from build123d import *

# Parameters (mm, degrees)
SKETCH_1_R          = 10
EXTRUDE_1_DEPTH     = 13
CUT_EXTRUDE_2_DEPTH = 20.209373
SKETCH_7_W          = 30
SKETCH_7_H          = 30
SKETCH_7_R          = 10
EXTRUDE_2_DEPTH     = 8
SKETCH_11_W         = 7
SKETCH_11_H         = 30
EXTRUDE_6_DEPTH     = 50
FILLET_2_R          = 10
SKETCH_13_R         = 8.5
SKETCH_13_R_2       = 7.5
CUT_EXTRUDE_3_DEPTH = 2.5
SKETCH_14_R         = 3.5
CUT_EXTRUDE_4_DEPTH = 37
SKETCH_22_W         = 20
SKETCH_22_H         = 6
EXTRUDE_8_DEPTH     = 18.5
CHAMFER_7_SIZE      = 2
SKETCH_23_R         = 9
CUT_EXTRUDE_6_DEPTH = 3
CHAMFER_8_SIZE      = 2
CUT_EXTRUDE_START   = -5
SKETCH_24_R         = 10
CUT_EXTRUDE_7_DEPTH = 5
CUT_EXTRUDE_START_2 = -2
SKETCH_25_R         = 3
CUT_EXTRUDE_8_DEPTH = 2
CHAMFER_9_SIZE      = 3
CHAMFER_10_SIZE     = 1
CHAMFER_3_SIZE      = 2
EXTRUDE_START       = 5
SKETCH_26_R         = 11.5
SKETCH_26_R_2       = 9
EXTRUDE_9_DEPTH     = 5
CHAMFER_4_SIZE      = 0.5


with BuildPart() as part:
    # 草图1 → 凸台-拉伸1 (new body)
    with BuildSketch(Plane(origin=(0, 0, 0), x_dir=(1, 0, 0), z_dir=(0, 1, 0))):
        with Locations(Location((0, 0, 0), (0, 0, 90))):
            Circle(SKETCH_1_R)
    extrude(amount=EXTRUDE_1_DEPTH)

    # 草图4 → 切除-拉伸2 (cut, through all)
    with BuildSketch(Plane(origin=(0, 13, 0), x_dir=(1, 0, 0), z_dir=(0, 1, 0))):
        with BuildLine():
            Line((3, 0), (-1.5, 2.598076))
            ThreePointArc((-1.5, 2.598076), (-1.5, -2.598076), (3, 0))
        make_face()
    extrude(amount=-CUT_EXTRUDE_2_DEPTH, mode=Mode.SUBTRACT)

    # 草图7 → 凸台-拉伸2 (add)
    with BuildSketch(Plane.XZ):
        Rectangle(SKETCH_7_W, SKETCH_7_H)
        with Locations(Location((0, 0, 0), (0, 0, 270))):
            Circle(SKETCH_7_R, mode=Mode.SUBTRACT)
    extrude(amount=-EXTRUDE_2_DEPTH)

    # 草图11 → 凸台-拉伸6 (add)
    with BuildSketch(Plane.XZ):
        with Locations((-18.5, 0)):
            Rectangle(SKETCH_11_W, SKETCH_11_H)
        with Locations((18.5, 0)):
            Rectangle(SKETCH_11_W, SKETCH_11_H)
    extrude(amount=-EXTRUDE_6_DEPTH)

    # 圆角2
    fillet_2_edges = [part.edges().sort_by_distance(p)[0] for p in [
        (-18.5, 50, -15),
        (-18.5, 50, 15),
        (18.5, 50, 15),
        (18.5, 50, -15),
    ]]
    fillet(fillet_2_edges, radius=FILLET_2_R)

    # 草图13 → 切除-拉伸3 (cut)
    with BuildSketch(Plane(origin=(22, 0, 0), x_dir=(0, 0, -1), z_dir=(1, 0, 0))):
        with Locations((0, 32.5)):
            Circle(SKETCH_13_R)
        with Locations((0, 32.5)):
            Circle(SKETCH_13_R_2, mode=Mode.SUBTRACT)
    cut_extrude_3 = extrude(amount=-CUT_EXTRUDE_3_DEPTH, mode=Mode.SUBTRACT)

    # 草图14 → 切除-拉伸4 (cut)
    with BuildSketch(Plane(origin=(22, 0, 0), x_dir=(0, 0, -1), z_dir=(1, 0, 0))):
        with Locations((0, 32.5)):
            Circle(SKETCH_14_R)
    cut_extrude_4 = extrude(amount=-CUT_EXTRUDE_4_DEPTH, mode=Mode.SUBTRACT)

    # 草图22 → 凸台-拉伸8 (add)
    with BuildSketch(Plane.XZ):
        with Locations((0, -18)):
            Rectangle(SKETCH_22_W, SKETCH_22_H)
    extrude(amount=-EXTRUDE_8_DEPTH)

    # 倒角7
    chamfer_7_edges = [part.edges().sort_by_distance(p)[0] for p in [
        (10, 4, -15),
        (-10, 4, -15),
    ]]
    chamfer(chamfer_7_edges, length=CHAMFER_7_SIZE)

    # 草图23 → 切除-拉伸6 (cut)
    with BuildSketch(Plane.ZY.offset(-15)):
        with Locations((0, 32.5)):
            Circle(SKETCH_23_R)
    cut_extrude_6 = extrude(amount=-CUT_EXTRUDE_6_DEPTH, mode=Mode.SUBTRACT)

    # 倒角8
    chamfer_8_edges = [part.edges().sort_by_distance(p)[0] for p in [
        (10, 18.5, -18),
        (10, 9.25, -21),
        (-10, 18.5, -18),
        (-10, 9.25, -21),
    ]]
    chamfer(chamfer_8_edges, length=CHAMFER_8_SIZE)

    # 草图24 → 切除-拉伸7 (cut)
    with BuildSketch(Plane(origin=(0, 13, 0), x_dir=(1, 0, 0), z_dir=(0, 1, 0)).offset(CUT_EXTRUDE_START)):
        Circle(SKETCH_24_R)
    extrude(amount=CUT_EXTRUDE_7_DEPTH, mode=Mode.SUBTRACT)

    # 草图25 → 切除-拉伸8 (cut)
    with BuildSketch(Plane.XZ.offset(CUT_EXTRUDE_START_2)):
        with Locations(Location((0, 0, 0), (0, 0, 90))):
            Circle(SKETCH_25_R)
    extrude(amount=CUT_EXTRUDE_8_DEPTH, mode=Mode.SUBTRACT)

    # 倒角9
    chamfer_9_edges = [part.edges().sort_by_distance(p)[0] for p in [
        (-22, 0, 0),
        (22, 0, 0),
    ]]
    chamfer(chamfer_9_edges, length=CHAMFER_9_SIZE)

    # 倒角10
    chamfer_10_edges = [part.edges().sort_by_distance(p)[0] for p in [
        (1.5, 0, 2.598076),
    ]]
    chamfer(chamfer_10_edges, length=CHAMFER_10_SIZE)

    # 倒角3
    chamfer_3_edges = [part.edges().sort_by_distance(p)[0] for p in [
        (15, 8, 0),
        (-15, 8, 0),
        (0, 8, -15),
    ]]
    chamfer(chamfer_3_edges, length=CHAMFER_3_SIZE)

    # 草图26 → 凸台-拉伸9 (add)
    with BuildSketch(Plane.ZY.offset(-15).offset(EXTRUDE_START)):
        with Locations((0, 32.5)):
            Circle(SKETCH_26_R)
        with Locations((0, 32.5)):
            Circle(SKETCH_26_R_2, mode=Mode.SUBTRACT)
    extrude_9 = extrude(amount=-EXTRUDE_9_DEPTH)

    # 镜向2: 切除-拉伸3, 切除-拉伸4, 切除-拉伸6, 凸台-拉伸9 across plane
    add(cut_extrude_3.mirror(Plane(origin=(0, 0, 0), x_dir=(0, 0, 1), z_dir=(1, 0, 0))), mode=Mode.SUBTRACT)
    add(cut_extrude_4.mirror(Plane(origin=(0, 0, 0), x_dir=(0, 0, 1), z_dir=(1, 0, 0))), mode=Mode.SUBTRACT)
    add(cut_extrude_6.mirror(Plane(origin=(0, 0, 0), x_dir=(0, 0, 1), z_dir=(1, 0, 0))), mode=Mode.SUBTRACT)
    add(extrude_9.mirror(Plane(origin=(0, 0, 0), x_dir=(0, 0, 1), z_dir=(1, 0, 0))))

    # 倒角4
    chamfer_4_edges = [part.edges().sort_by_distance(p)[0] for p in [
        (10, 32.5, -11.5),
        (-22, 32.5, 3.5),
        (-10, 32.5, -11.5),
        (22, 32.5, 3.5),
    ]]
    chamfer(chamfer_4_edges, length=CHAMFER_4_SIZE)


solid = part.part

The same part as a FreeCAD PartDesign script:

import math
import FreeCAD as App
import Part
import Sketcher

V = App.Vector
Q = App.Units.Quantity


def edges_at(feature, points):
    """Names of the edges that pass closest to the given points."""
    edges = feature.Shape.Edges
    near = lambda p: min(range(len(edges)), key=lambda i: edges[i].distToShape(Part.Vertex(*p))[0])
    return sorted({f"Edge{near(p) + 1}" for p in points})


def add_polygon(sketch, points):
    """Adds a closed chain of lines whose ends are joined by coincident constraints."""
    first, n = sketch.GeometryCount, len(points)
    for a, b in zip(points, points[1:] + points[:1]):
        sketch.addGeometry(Part.LineSegment(App.Vector(*a, 0), App.Vector(*b, 0)), False)
    for i in range(n):
        sketch.addConstraint(Sketcher.Constraint("Coincident", first + i, 2, first + (i + 1) % n, 1))

doc = App.newDocument("Part")
params = doc.addObject("Spreadsheet::Sheet", "Params")
for row, (alias, value) in enumerate([
    ("sketch1_diameter", "20 mm"),
    ("pad1_length", "13 mm"),
    ("sketch2_radius", "3 mm"),
    ("sketch3_diameter", "20 mm"),
    ("sketch3_width", "30 mm"),
    ("pad2_length", "8 mm"),
    ("sketch4_width", "7 mm"),
    ("sketch4_height", "30 mm"),
    ("pad3_length", "50 mm"),
    ("fillet_radius", "10 mm"),
    ("sketch5_diameter", "17 mm"),
    ("sketch5_diameter2", "15 mm"),
    ("pocket2_length", "2.5 mm"),
    ("sketch6_diameter", "7 mm"),
    ("pocket3_length", "37 mm"),
    ("sketch7_width", "20 mm"),
    ("sketch7_height", "6 mm"),
    ("pad4_length", "18.5 mm"),
    ("chamfer_size", "2 mm"),
    ("sketch8_diameter", "18 mm"),
    ("pocket4_length", "3 mm"),
    ("chamfer2_size", "2 mm"),
    ("sketch9_diameter", "20 mm"),
    ("pocket5_length", "5 mm"),
    ("sketch10_diameter", "6 mm"),
    ("pocket6_length", "2 mm"),
    ("chamfer3_size", "3 mm"),
    ("chamfer4_size", "1 mm"),
    ("chamfer5_size", "2 mm"),
    ("sketch11_diameter", "23 mm"),
    ("sketch11_diameter2", "18 mm"),
    ("pad5_length", "5 mm"),
    ("chamfer6_size", "0.5 mm"),
], start=1):
    params.set(f"A{row}", alias)
    params.set(f"B{row}", "=" + value)
    params.setAlias(f"B{row}", alias)

body = doc.addObject("PartDesign::Body", "Body")

# Sketch on XZ plane
sketch1 = body.newObject("Sketcher::SketchObject", "Sketch")
sketch1.AttachmentSupport = (doc.getObject("XZ_Plane"), [""])
sketch1.MapMode = "FlatFace"
sketch1.addGeometry(Part.Circle(V(0, 0, 0), V(0, 0, 1), 10), False)
sketch1.addConstraint([
    Sketcher.Constraint("Coincident", 0, 3, -1, 1),
    Sketcher.Constraint("Diameter", 0, 20.0),
])
sketch1.setExpression("Constraints[1]", "Params.sketch1_diameter")
pad1 = body.newObject("PartDesign::Pad", "Pad")
pad1.Profile = sketch1
pad1.setExpression("Length", "Params.pad1_length")
pad1.Reversed = True

# Sketch on XZ plane
sketch2 = body.newObject("Sketcher::SketchObject", "Sketch001")
sketch2.AttachmentSupport = (doc.getObject("XZ_Plane"), [""])
sketch2.MapMode = "FlatFace"
sketch2.AttachmentOffset = App.Placement(V(0, 0, -13), App.Rotation())
sketch2.addGeometry([
    Part.LineSegment(V(3, 0, 0), V(-1.5, -2.598076, 0)),
    Part.ArcOfCircle(Part.Circle(V(0, 0, 0), V(0, 0, 1), 3), math.radians(0), math.radians(239.999996)),
], False)
sketch2.addConstraint([
    Sketcher.Constraint("Coincident", 0, 1, 1, 1),
    Sketcher.Constraint("Coincident", 1, 2, 0, 2),
    Sketcher.Constraint("Coincident", 1, 3, -1, 1),
    Sketcher.Constraint("PointOnObject", 0, 1, -1),
    Sketcher.Constraint("Radius", 1, 3.0),
    Sketcher.Constraint("Angle", 0, Q("-150.000002 deg")),
])
sketch2.setExpression("Constraints[4]", "Params.sketch2_radius")
pocket1 = body.newObject("PartDesign::Pocket", "Pocket")
pocket1.Profile = sketch2
pocket1.Type = "ThroughAll"
pocket1.Reversed = True

# Sketch on XZ plane
sketch3 = body.newObject("Sketcher::SketchObject", "Sketch002")
sketch3.AttachmentSupport = (doc.getObject("XZ_Plane"), [""])
sketch3.MapMode = "FlatFace"
add_polygon(sketch3, [(-15, 15), (-15, -15), (15, -15), (15, 15)])  # lines 0-3
sketch3.addGeometry(Part.Circle(V(0, 0, 0), V(0, 0, 1), 10), False)  # 4
sketch3.addConstraint([
    Sketcher.Constraint("Vertical", 0),
    Sketcher.Constraint("Horizontal", 1),
    Sketcher.Constraint("Vertical", 2),
    Sketcher.Constraint("Horizontal", 3),
    Sketcher.Constraint("Coincident", 4, 3, -1, 1),
    Sketcher.Constraint("Symmetric", 0, 2, 2, 2, -1, 1),
    Sketcher.Constraint("Equal", 3, 0),
    Sketcher.Constraint("Diameter", 4, 20.0),
    Sketcher.Constraint("DistanceX", 1, 1, 1, 2, 30.0),
])
sketch3.setExpression("Constraints[11]", "Params.sketch3_diameter")
sketch3.setExpression("Constraints[12]", "Params.sketch3_width")
pad2 = body.newObject("PartDesign::Pad", "Pad001")
pad2.Profile = sketch3
pad2.setExpression("Length", "Params.pad2_length")
pad2.Reversed = True

# Sketch on XZ plane
sketch4 = body.newObject("Sketcher::SketchObject", "Sketch003")
sketch4.AttachmentSupport = (doc.getObject("XZ_Plane"), [""])
sketch4.MapMode = "FlatFace"
add_polygon(sketch4, [(-22, 15), (-22, -15), (-15, -15), (-15, 15)])  # lines 0-3
add_polygon(sketch4, [(15, 15), (15, -15), (22, -15), (22, 15)])  # lines 4-7
sketch4.addConstraint([
    Sketcher.Constraint("Vertical", 0),
    Sketcher.Constraint("Horizontal", 1),
    Sketcher.Constraint("Vertical", 2),
    Sketcher.Constraint("Horizontal", 3),
    Sketcher.Constraint("Vertical", 4),
    Sketcher.Constraint("Horizontal", 5),
    Sketcher.Constraint("Vertical", 6),
    Sketcher.Constraint("Horizontal", 7),
    Sketcher.Constraint("Symmetric", 2, 2, 4, 2, -1, 1),
    Sketcher.Constraint("Symmetric", 0, 2, 6, 2, -1, 1),
    Sketcher.Constraint("Horizontal", 1, 2, 4, 2),
    Sketcher.Constraint("DistanceX", 1, 1, 1, 2, 7.0),
    Sketcher.Constraint("DistanceY", 0, 2, 0, 1, 30.0),
    Sketcher.Constraint("DistanceX", 0, 2, -1, 1, 22.0),
])
sketch4.setExpression("Constraints[19]", "Params.sketch4_width")
sketch4.setExpression("Constraints[20]", "Params.sketch4_height")
pad3 = body.newObject("PartDesign::Pad", "Pad002")
pad3.Profile = sketch4
pad3.setExpression("Length", "Params.pad3_length")
pad3.Reversed = True
doc.recompute()

fillet = body.newObject("PartDesign::Fillet", "Fillet")
fillet.Base = (pad3, edges_at(pad3, [
    (-18.5, 50, -15),
    (-18.5, 50, 15),
    (18.5, 50, 15),
    (18.5, 50, -15),
]))
fillet.setExpression("Radius", "Params.fillet_radius")

# Sketch on YZ plane
sketch5 = body.newObject("Sketcher::SketchObject", "Sketch004")
sketch5.AttachmentSupport = (doc.getObject("YZ_Plane"), [""])
sketch5.MapMode = "FlatFace"
sketch5.AttachmentOffset = App.Placement(V(0, 0, 22), App.Rotation())
sketch5.addGeometry([
    Part.Circle(V(32.5, 0, 0), V(0, 0, 1), 8.5),
    Part.Circle(V(32.5, 0, 0), V(0, 0, 1), 7.5),
], False)
sketch5.addConstraint([
    Sketcher.Constraint("Coincident", 1, 3, 0, 3),
    Sketcher.Constraint("PointOnObject", 0, 3, -1),
    Sketcher.Constraint("Diameter", 0, 17.0),
    Sketcher.Constraint("Diameter", 1, 15.0),
    Sketcher.Constraint("DistanceX", -1, 1, 0, 3, 32.5),
])
sketch5.setExpression("Constraints[2]", "Params.sketch5_diameter")
sketch5.setExpression("Constraints[3]", "Params.sketch5_diameter2")
pocket2 = body.newObject("PartDesign::Pocket", "Pocket001")
pocket2.Profile = sketch5
pocket2.setExpression("Length", "Params.pocket2_length")

# Sketch on YZ plane
sketch6 = body.newObject("Sketcher::SketchObject", "Sketch005")
sketch6.AttachmentSupport = (doc.getObject("YZ_Plane"), [""])
sketch6.MapMode = "FlatFace"
sketch6.AttachmentOffset = App.Placement(V(0, 0, 22), App.Rotation())
sketch6.addGeometry(Part.Circle(V(32.5, 0, 0), V(0, 0, 1), 3.5), False)
sketch6.addConstraint([
    Sketcher.Constraint("PointOnObject", 0, 3, -1),
    Sketcher.Constraint("Diameter", 0, 7.0),
    Sketcher.Constraint("DistanceX", -1, 1, 0, 3, 32.5),
])
sketch6.setExpression("Constraints[1]", "Params.sketch6_diameter")
pocket3 = body.newObject("PartDesign::Pocket", "Pocket002")
pocket3.Profile = sketch6
pocket3.setExpression("Length", "Params.pocket3_length")

# Sketch on XZ plane
sketch7 = body.newObject("Sketcher::SketchObject", "Sketch006")
sketch7.AttachmentSupport = (doc.getObject("XZ_Plane"), [""])
sketch7.MapMode = "FlatFace"
add_polygon(sketch7, [(-10, -15), (-10, -21), (10, -21), (10, -15)])  # lines 0-3
sketch7.addConstraint([
    Sketcher.Constraint("Vertical", 0),
    Sketcher.Constraint("Horizontal", 1),
    Sketcher.Constraint("Vertical", 2),
    Sketcher.Constraint("Horizontal", 3),
    Sketcher.Constraint("DistanceX", 1, 1, 1, 2, 20.0),
    Sketcher.Constraint("DistanceY", 0, 2, 0, 1, 6.0),
    Sketcher.Constraint("DistanceX", 0, 2, -1, 1, 10.0),
    Sketcher.Constraint("DistanceY", 0, 2, -1, 1, 21.0),
])
sketch7.setExpression("Constraints[8]", "Params.sketch7_width")
sketch7.setExpression("Constraints[9]", "Params.sketch7_height")
pad4 = body.newObject("PartDesign::Pad", "Pad003")
pad4.Profile = sketch7
pad4.setExpression("Length", "Params.pad4_length")
pad4.Reversed = True
doc.recompute()

chamfer = body.newObject("PartDesign::Chamfer", "Chamfer")
chamfer.Base = (pad4, edges_at(pad4, [(10, 4, -15), (-10, 4, -15)]))
chamfer.setExpression("Size", "Params.chamfer_size")

# Sketch on YZ plane
sketch8 = body.newObject("Sketcher::SketchObject", "Sketch007")
sketch8.AttachmentSupport = (doc.getObject("YZ_Plane"), [""])
sketch8.MapMode = "FlatFace"
sketch8.AttachmentOffset = App.Placement(V(0, 0, 15), App.Rotation())
sketch8.addGeometry(Part.Circle(V(32.5, 0, 0), V(0, 0, 1), 9), False)
sketch8.addConstraint([
    Sketcher.Constraint("PointOnObject", 0, 3, -1),
    Sketcher.Constraint("Diameter", 0, 18.0),
    Sketcher.Constraint("DistanceX", -1, 1, 0, 3, 32.5),
])
sketch8.setExpression("Constraints[1]", "Params.sketch8_diameter")
pocket4 = body.newObject("PartDesign::Pocket", "Pocket003")
pocket4.Profile = sketch8
pocket4.setExpression("Length", "Params.pocket4_length")
pocket4.Reversed = True
doc.recompute()

chamfer2 = body.newObject("PartDesign::Chamfer", "Chamfer001")
chamfer2.Base = (pocket4, edges_at(pocket4, [
    (10, 18.5, -18),
    (10, 9.25, -21),
    (-10, 18.5, -18),
    (-10, 9.25, -21),
]))
chamfer2.setExpression("Size", "Params.chamfer2_size")

# Sketch on XZ plane
sketch9 = body.newObject("Sketcher::SketchObject", "Sketch008")
sketch9.AttachmentSupport = (doc.getObject("XZ_Plane"), [""])
sketch9.MapMode = "FlatFace"
sketch9.AttachmentOffset = App.Placement(V(0, 0, -8), App.Rotation())
sketch9.addGeometry(Part.Circle(V(0, 0, 0), V(0, 0, 1), 10), False)
sketch9.addConstraint([
    Sketcher.Constraint("Coincident", 0, 3, -1, 1),
    Sketcher.Constraint("Diameter", 0, 20.0),
])
sketch9.setExpression("Constraints[1]", "Params.sketch9_diameter")
pocket5 = body.newObject("PartDesign::Pocket", "Pocket004")
pocket5.Profile = sketch9
pocket5.setExpression("Length", "Params.pocket5_length")

# Sketch on XZ plane
sketch10 = body.newObject("Sketcher::SketchObject", "Sketch009")
sketch10.AttachmentSupport = (doc.getObject("XZ_Plane"), [""])
sketch10.MapMode = "FlatFace"
sketch10.AttachmentOffset = App.Placement(V(0, 0, -2), App.Rotation())
sketch10.addGeometry(Part.Circle(V(0, 0, 0), V(0, 0, 1), 3), False)
sketch10.addConstraint([
    Sketcher.Constraint("Coincident", 0, 3, -1, 1),
    Sketcher.Constraint("Diameter", 0, 6.0),
])
sketch10.setExpression("Constraints[1]", "Params.sketch10_diameter")
pocket6 = body.newObject("PartDesign::Pocket", "Pocket005")
pocket6.Profile = sketch10
pocket6.setExpression("Length", "Params.pocket6_length")
pocket6.Reversed = True
doc.recompute()

chamfer3 = body.newObject("PartDesign::Chamfer", "Chamfer002")
chamfer3.Base = (pocket6, edges_at(pocket6, [(-22, 0, 0), (22, 0, 0)]))
chamfer3.setExpression("Size", "Params.chamfer3_size")
doc.recompute()

chamfer4 = body.newObject("PartDesign::Chamfer", "Chamfer003")
chamfer4.Base = (chamfer3, edges_at(chamfer3, [(-1.5, 0, 2.598)]))
chamfer4.setExpression("Size", "Params.chamfer4_size")
doc.recompute()

chamfer5 = body.newObject("PartDesign::Chamfer", "Chamfer004")
chamfer5.Base = (chamfer4, edges_at(chamfer4, [(15, 8, 0), (-15, 8, 0), (0, 8, -15)]))
chamfer5.setExpression("Size", "Params.chamfer5_size")

# Sketch on YZ plane
sketch11 = body.newObject("Sketcher::SketchObject", "Sketch010")
sketch11.AttachmentSupport = (doc.getObject("YZ_Plane"), [""])
sketch11.MapMode = "FlatFace"
sketch11.AttachmentOffset = App.Placement(V(0, 0, 10), App.Rotation())
sketch11.addGeometry([
    Part.Circle(V(32.5, 0, 0), V(0, 0, 1), 11.5),
    Part.Circle(V(32.5, 0, 0), V(0, 0, 1), 9),
], False)
sketch11.addConstraint([
    Sketcher.Constraint("Coincident", 1, 3, 0, 3),
    Sketcher.Constraint("PointOnObject", 0, 3, -1),
    Sketcher.Constraint("Diameter", 0, 23.0),
    Sketcher.Constraint("Diameter", 1, 18.0),
    Sketcher.Constraint("DistanceX", -1, 1, 0, 3, 32.5),
])
sketch11.setExpression("Constraints[2]", "Params.sketch11_diameter")
sketch11.setExpression("Constraints[3]", "Params.sketch11_diameter2")
pad5 = body.newObject("PartDesign::Pad", "Pad004")
pad5.Profile = sketch11
pad5.setExpression("Length", "Params.pad5_length")
doc.recompute()

mirrored = body.newObject("PartDesign::Mirrored", "Mirrored")
mirrored.Originals = [pocket2, pocket3, pocket4, pad5]
mirrored.MirrorPlane = (doc.getObject("YZ_Plane"), [""])
body.Tip = mirrored
doc.recompute()

chamfer6 = body.newObject("PartDesign::Chamfer", "Chamfer005")
chamfer6.Base = (mirrored, edges_at(mirrored, [
    (10, 32.5, -11.5),
    (-22, 32.5, 3.5),
    (-10, 32.5, -11.5),
    (22, 32.5, 3.5),
]))
chamfer6.setExpression("Size", "Params.chamfer6_size")

doc.recompute()
